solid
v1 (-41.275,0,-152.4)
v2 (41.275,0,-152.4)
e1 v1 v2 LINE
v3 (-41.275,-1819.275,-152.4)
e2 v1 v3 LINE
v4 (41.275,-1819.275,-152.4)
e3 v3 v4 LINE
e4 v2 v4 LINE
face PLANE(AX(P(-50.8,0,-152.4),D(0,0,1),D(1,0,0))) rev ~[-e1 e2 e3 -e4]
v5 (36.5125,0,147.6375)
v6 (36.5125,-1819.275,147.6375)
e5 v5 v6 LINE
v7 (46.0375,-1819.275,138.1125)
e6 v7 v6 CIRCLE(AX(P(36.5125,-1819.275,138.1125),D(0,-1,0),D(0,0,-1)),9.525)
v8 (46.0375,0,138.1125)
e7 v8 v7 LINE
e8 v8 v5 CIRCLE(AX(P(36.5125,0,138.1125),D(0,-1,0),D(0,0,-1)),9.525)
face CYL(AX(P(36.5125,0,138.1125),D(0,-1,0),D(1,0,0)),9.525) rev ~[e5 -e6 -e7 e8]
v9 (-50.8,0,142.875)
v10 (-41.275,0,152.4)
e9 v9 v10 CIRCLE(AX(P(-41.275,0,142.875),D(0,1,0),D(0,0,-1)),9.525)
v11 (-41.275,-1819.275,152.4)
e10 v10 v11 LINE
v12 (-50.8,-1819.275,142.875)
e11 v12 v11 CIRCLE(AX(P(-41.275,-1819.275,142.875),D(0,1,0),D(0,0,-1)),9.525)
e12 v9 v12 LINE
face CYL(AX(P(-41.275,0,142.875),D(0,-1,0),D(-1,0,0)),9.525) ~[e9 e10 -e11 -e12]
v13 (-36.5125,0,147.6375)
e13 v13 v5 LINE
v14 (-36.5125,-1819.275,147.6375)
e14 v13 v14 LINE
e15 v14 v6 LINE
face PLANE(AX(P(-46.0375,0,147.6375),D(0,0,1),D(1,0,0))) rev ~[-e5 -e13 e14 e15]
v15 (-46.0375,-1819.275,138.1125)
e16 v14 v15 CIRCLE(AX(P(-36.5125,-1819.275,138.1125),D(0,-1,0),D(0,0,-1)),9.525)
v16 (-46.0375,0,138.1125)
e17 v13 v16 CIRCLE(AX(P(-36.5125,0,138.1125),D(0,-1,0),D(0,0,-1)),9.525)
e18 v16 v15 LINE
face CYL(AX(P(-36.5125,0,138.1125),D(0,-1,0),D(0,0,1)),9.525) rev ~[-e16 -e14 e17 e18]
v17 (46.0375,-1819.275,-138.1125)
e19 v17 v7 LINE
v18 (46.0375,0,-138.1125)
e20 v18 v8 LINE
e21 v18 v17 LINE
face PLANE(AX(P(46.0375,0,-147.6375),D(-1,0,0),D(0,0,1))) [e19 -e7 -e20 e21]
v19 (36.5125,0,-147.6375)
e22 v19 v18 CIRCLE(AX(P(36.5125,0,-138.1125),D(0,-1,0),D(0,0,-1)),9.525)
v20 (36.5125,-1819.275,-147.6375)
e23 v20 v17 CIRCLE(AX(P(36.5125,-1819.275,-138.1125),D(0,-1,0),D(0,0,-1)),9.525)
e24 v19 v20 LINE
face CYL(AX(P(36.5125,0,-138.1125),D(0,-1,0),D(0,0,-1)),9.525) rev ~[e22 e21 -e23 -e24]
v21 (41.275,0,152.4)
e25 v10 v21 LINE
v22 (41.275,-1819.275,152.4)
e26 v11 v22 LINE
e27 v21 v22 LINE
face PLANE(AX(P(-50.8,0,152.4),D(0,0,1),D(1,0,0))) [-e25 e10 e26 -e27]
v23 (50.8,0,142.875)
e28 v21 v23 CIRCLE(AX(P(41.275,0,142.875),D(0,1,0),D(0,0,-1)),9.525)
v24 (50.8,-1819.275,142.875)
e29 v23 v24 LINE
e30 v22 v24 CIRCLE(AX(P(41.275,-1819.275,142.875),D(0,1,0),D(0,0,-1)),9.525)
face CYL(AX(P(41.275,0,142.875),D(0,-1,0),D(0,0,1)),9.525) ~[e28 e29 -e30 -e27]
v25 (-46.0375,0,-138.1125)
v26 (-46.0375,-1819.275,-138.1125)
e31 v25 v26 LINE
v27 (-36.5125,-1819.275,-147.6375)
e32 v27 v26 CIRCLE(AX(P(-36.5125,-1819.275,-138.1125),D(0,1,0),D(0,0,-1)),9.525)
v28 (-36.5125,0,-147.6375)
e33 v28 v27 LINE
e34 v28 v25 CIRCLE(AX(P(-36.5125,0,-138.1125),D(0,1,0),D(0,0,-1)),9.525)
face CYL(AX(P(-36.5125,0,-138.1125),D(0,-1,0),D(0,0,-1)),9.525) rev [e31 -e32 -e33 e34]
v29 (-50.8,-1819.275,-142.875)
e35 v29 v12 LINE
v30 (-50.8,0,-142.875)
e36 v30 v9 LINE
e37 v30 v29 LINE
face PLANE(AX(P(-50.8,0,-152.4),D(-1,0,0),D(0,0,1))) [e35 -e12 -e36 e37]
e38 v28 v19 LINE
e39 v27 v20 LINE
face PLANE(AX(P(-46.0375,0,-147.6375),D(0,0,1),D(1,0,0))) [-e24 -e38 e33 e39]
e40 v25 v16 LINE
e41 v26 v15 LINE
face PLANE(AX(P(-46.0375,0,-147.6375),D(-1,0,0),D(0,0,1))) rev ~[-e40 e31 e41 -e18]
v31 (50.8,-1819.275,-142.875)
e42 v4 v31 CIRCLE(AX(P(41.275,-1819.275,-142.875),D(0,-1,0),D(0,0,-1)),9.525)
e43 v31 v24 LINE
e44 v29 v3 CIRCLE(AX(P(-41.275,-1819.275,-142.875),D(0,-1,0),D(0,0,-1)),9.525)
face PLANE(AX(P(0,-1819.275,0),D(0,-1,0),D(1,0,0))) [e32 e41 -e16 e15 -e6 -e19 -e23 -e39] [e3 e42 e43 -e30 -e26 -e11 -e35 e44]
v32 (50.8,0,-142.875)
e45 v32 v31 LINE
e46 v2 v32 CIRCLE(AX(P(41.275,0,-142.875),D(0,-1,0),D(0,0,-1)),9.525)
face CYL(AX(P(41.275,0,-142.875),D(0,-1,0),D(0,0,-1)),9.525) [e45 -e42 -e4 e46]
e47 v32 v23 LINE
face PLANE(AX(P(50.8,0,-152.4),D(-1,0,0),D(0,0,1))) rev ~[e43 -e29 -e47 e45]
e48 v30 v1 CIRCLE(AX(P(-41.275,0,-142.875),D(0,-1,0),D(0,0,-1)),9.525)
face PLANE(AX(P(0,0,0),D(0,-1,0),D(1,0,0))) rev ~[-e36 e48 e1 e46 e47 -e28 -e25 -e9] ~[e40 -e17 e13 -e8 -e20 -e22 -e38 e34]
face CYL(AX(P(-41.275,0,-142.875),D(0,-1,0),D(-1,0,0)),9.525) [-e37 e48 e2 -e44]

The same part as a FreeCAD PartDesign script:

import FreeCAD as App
import Part
import Sketcher
from FreeCAD import Vector
Q = App.Units.Quantity


def edges_at(feature, points):
    """Names of the edges that pass closest to the given points."""
    edges = feature.Shape.Edges
    near = lambda p: min(range(len(edges)), key=lambda i: edges[i].distToShape(Part.Vertex(*p))[0])
    return sorted({f"Edge{near(p) + 1}" for p in points})


def add_polygon(sketch, points):
    """Adds a closed chain of lines whose ends are joined by coincident constraints."""
    first, n = sketch.GeometryCount, len(points)
    for a, b in zip(points, points[1:] + points[:1]):
        sketch.addGeometry(Part.LineSegment(App.Vector(*a, 0), App.Vector(*b, 0)), False)
    for i in range(n):
        sketch.addConstraint(Sketcher.Constraint("Coincident", first + i, 2, first + (i + 1) % n, 1))

doc = App.newDocument("Part")
body = doc.addObject("PartDesign::Body", "Body")

# Sketch on XZ plane
sketch1 = body.newObject("Sketcher::SketchObject", "Sketch")
sketch1.AttachmentSupport = (doc.getObject("XZ_Plane"), [""])
sketch1.MapMode = "FlatFace"
add_polygon(sketch1, [(-51, 152), (-51, -152), (51, -152), (51, 152)])  # lines 0-3
add_polygon(sketch1, [(46, -148), (-46, -148), (-46, 148), (46, 148)])  # lines 4-7
sketch1.addConstraint([
    Sketcher.Constraint("Vertical", 0),
    Sketcher.Constraint("Horizontal", 1),
    Sketcher.Constraint("Vertical", 2),
    Sketcher.Constraint("Horizontal", 3),
    Sketcher.Constraint("Horizontal", 4),
    Sketcher.Constraint("Vertical", 5),
    Sketcher.Constraint("Horizontal", 6),
    Sketcher.Constraint("Vertical", 7),
    Sketcher.Constraint("Symmetric", 0, 2, 2, 2, -1, 1),
    Sketcher.Constraint("Symmetric", 4, 2, 6, 2, -1, 1),
    Sketcher.Constraint("DistanceX", 1, 1, 1, 2, Q("4 in")),
    Sketcher.Constraint("DistanceY", 0, 2, 0, 1, Q("12 in")),
    Sketcher.Constraint("DistanceX", 4, 2, 4, 1, Q("3.625 in")),
    Sketcher.Constraint("DistanceY", 5, 1, 5, 2, Q("11.625 in")),
])
pad1 = body.newObject("PartDesign::Pad", "Pad")
pad1.Profile = sketch1
pad1.Length = Q("71.625 in")
doc.recompute()

fillet = body.newObject("PartDesign::Fillet", "Fillet")
fillet.Base = (pad1, edges_at(pad1, [
    (50.8, -909.638, 152.4),
    (-50.8, -909.638, 152.4),
    (50.8, -909.638, -152.4),
    (-46.038, -909.638, -147.637),
    (-50.8, -909.638, -152.4),
    (46.038, -909.638, 147.637),
    (-46.038, -909.638, 147.637),
    (46.038, -909.638, -147.637),
]))
fillet.Radius = Q("0.375 in")

doc.recompute()
